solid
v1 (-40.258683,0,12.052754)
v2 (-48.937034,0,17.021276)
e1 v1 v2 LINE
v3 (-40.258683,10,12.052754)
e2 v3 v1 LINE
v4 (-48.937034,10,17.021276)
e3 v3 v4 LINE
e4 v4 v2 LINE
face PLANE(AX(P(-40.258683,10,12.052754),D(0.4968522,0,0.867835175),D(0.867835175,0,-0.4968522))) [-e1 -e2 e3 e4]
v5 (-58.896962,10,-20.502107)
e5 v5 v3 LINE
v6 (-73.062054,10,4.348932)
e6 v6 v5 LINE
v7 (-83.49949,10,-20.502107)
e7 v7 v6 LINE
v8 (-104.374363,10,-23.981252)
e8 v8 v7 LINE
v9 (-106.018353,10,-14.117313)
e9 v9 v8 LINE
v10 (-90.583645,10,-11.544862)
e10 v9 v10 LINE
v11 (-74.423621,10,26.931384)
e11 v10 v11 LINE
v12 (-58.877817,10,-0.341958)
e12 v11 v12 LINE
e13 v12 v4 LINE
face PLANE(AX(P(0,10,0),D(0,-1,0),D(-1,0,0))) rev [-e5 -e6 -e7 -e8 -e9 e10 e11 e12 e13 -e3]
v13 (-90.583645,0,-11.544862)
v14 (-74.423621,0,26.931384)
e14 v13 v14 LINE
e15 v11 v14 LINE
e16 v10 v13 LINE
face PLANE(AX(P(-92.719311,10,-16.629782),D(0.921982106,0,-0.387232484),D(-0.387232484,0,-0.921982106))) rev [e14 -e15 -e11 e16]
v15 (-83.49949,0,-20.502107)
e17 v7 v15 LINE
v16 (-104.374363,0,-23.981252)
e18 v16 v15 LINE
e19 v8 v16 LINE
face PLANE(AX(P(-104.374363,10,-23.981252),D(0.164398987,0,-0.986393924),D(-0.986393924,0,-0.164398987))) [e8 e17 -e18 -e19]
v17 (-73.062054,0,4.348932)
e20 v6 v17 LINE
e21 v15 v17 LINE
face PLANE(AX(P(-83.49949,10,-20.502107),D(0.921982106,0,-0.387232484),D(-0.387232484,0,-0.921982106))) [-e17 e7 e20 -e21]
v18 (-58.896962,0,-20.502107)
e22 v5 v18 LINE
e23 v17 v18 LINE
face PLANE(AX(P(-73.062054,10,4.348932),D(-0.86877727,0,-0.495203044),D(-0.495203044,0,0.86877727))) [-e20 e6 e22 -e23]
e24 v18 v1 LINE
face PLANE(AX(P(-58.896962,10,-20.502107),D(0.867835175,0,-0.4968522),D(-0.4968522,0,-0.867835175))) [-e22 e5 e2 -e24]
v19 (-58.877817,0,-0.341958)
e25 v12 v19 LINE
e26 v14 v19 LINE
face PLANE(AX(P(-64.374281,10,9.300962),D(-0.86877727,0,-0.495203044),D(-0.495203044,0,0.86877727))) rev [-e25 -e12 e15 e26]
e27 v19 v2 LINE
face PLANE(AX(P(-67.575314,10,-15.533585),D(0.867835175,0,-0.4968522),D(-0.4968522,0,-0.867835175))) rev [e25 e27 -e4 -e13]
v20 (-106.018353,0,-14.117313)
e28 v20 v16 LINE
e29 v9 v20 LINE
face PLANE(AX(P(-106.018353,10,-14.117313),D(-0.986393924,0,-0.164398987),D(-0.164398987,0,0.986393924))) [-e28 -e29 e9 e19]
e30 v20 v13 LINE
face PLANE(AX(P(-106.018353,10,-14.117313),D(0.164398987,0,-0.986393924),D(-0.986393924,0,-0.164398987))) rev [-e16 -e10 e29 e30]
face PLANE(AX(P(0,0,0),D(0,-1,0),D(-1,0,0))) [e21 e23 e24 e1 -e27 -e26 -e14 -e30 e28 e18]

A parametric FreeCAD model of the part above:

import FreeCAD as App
import Part
import Sketcher

V = App.Vector

doc = App.newDocument("Part")
params = doc.addObject("Spreadsheet::Sheet", "Params")
for row, (alias, value) in enumerate([
    ("sketch1_length", "10 mm"),
    ("pad1_length", "10 mm"),
], start=1):
    params.set(f"A{row}", alias)
    params.set(f"B{row}", "=" + value)
    params.setAlias(f"B{row}", alias)

body = doc.addObject("PartDesign::Body", "Body")

# Sketch on XZ plane
sketch1 = doc.addObject("Sketcher::SketchObject", "Sketch")
body.addObject(sketch1)
sketch1.AttachmentSupport = (doc.XZ_Plane, [""])
sketch1.MapMode = "FlatFace"
sketch1.addGeometry(Part.LineSegment(V(-83.49949, -20.502107, 0), V(-104.374363, -23.981252, 0)), False)
sketch1.addGeometry(Part.LineSegment(V(-104.374363, -23.981252, 0), V(-106.018353, -14.117313, 0)), False)
sketch1.addGeometry(Part.LineSegment(V(-106.018353, -14.117313, 0), V(-90.583645, -11.544862, 0)), False)
sketch1.addGeometry(Part.LineSegment(V(-90.583645, -11.544862, 0), V(-74.423621, 26.931384, 0)), False)
sketch1.addGeometry(Part.LineSegment(V(-74.423621, 26.931384, 0), V(-58.877817, -0.341958, 0)), False)
sketch1.addGeometry(Part.LineSegment(V(-58.877817, -0.341958, 0), V(-48.937034, 17.021276, 0)), False)
sketch1.addGeometry(Part.LineSegment(V(-48.937034, 17.021276, 0), V(-40.258683, 12.052754, 0)), False)
sketch1.addGeometry(Part.LineSegment(V(-40.258683, 12.052754, 0), V(-58.896962, -20.502107, 0)), False)
sketch1.addGeometry(Part.LineSegment(V(-58.896962, -20.502107, 0), V(-73.062054, 4.348932, 0)), False)
sketch1.addGeometry(Part.LineSegment(V(-73.062054, 4.348932, 0), V(-83.49949, -20.502107, 0)), False)
sketch1.addConstraint(Sketcher.Constraint("Coincident", 0, 2, 1, 1))
sketch1.addConstraint(Sketcher.Constraint("Coincident", 1, 2, 2, 1))
sketch1.addConstraint(Sketcher.Constraint("Coincident", 2, 2, 3, 1))
sketch1.addConstraint(Sketcher.Constraint("Coincident", 3, 2, 4, 1))
sketch1.addConstraint(Sketcher.Constraint("Coincident", 4, 2, 5, 1))
sketch1.addConstraint(Sketcher.Constraint("Coincident", 5, 2, 6, 1))
sketch1.addConstraint(Sketcher.Constraint("Coincident", 6, 2, 7, 1))
sketch1.addConstraint(Sketcher.Constraint("Coincident", 7, 2, 8, 1))
sketch1.addConstraint(Sketcher.Constraint("Coincident", 8, 2, 9, 1))
sketch1.addConstraint(Sketcher.Constraint("Coincident", 9, 2, 0, 1))
sketch1.addConstraint(Sketcher.Constraint("Perpendicular", 0, 1))
sketch1.addConstraint(Sketcher.Constraint("Perpendicular", 1, 2))
sketch1.addConstraint(Sketcher.Constraint("Perpendicular", 5, 6))
sketch1.addConstraint(Sketcher.Constraint("Perpendicular", 6, 7))
sketch1.addConstraint(Sketcher.Constraint("Parallel", 4, 8))
sketch1.addConstraint(Sketcher.Constraint("Parallel", 3, 9))
sketch1.addConstraint(Sketcher.Constraint("Horizontal", 7, 2, 9, 2))
sketch1.addConstraint(Sketcher.Constraint("Equal", 1, 6))
sketch1.addConstraint(Sketcher.Constraint("Distance", 1, 10.0))
sketch1.addConstraint(Sketcher.Constraint("DistanceX", 0, 2, 7, 2, 45.477401))
sketch1.addConstraint(Sketcher.Constraint("Distance", 2, 15.64761))
sketch1.addConstraint(Sketcher.Constraint("Distance", 4, 31.392789))
sketch1.addConstraint(Sketcher.Constraint("DistanceY", 2, 2, -1, 1, 11.544862))
sketch1.addConstraint(Sketcher.Constraint("DistanceX", 3, 2, -1, 1, 74.423621))
sketch1.addConstraint(Sketcher.Constraint("DistanceX", 7, 2, -1, 1, 58.896962))
sketch1.addConstraint(Sketcher.Constraint("DistanceY", -1, 1, 8, 2, 4.348932))
sketch1.addConstraint(Sketcher.Constraint("DistanceX", 9, 2, -1, 1, 83.49949))
sketch1.addConstraint(Sketcher.Constraint("DistanceX", 1, 2, 0, 2, 1.64399))
sketch1.addConstraint(Sketcher.Constraint("DistanceY", 4, 2, 3, 2, 27.273341))
sketch1.addConstraint(Sketcher.Constraint("DistanceY", 5, 2, 3, 2, 9.910108))
sketch1.setExpression("Constraints[18]", "Params.sketch1_length")
pad1 = doc.addObject("PartDesign::Pad", "Pad")
body.addObject(pad1)
pad1.Profile = sketch1
pad1.setExpression("Length", "Params.pad1_length")
pad1.Reversed = True

doc.recompute()
